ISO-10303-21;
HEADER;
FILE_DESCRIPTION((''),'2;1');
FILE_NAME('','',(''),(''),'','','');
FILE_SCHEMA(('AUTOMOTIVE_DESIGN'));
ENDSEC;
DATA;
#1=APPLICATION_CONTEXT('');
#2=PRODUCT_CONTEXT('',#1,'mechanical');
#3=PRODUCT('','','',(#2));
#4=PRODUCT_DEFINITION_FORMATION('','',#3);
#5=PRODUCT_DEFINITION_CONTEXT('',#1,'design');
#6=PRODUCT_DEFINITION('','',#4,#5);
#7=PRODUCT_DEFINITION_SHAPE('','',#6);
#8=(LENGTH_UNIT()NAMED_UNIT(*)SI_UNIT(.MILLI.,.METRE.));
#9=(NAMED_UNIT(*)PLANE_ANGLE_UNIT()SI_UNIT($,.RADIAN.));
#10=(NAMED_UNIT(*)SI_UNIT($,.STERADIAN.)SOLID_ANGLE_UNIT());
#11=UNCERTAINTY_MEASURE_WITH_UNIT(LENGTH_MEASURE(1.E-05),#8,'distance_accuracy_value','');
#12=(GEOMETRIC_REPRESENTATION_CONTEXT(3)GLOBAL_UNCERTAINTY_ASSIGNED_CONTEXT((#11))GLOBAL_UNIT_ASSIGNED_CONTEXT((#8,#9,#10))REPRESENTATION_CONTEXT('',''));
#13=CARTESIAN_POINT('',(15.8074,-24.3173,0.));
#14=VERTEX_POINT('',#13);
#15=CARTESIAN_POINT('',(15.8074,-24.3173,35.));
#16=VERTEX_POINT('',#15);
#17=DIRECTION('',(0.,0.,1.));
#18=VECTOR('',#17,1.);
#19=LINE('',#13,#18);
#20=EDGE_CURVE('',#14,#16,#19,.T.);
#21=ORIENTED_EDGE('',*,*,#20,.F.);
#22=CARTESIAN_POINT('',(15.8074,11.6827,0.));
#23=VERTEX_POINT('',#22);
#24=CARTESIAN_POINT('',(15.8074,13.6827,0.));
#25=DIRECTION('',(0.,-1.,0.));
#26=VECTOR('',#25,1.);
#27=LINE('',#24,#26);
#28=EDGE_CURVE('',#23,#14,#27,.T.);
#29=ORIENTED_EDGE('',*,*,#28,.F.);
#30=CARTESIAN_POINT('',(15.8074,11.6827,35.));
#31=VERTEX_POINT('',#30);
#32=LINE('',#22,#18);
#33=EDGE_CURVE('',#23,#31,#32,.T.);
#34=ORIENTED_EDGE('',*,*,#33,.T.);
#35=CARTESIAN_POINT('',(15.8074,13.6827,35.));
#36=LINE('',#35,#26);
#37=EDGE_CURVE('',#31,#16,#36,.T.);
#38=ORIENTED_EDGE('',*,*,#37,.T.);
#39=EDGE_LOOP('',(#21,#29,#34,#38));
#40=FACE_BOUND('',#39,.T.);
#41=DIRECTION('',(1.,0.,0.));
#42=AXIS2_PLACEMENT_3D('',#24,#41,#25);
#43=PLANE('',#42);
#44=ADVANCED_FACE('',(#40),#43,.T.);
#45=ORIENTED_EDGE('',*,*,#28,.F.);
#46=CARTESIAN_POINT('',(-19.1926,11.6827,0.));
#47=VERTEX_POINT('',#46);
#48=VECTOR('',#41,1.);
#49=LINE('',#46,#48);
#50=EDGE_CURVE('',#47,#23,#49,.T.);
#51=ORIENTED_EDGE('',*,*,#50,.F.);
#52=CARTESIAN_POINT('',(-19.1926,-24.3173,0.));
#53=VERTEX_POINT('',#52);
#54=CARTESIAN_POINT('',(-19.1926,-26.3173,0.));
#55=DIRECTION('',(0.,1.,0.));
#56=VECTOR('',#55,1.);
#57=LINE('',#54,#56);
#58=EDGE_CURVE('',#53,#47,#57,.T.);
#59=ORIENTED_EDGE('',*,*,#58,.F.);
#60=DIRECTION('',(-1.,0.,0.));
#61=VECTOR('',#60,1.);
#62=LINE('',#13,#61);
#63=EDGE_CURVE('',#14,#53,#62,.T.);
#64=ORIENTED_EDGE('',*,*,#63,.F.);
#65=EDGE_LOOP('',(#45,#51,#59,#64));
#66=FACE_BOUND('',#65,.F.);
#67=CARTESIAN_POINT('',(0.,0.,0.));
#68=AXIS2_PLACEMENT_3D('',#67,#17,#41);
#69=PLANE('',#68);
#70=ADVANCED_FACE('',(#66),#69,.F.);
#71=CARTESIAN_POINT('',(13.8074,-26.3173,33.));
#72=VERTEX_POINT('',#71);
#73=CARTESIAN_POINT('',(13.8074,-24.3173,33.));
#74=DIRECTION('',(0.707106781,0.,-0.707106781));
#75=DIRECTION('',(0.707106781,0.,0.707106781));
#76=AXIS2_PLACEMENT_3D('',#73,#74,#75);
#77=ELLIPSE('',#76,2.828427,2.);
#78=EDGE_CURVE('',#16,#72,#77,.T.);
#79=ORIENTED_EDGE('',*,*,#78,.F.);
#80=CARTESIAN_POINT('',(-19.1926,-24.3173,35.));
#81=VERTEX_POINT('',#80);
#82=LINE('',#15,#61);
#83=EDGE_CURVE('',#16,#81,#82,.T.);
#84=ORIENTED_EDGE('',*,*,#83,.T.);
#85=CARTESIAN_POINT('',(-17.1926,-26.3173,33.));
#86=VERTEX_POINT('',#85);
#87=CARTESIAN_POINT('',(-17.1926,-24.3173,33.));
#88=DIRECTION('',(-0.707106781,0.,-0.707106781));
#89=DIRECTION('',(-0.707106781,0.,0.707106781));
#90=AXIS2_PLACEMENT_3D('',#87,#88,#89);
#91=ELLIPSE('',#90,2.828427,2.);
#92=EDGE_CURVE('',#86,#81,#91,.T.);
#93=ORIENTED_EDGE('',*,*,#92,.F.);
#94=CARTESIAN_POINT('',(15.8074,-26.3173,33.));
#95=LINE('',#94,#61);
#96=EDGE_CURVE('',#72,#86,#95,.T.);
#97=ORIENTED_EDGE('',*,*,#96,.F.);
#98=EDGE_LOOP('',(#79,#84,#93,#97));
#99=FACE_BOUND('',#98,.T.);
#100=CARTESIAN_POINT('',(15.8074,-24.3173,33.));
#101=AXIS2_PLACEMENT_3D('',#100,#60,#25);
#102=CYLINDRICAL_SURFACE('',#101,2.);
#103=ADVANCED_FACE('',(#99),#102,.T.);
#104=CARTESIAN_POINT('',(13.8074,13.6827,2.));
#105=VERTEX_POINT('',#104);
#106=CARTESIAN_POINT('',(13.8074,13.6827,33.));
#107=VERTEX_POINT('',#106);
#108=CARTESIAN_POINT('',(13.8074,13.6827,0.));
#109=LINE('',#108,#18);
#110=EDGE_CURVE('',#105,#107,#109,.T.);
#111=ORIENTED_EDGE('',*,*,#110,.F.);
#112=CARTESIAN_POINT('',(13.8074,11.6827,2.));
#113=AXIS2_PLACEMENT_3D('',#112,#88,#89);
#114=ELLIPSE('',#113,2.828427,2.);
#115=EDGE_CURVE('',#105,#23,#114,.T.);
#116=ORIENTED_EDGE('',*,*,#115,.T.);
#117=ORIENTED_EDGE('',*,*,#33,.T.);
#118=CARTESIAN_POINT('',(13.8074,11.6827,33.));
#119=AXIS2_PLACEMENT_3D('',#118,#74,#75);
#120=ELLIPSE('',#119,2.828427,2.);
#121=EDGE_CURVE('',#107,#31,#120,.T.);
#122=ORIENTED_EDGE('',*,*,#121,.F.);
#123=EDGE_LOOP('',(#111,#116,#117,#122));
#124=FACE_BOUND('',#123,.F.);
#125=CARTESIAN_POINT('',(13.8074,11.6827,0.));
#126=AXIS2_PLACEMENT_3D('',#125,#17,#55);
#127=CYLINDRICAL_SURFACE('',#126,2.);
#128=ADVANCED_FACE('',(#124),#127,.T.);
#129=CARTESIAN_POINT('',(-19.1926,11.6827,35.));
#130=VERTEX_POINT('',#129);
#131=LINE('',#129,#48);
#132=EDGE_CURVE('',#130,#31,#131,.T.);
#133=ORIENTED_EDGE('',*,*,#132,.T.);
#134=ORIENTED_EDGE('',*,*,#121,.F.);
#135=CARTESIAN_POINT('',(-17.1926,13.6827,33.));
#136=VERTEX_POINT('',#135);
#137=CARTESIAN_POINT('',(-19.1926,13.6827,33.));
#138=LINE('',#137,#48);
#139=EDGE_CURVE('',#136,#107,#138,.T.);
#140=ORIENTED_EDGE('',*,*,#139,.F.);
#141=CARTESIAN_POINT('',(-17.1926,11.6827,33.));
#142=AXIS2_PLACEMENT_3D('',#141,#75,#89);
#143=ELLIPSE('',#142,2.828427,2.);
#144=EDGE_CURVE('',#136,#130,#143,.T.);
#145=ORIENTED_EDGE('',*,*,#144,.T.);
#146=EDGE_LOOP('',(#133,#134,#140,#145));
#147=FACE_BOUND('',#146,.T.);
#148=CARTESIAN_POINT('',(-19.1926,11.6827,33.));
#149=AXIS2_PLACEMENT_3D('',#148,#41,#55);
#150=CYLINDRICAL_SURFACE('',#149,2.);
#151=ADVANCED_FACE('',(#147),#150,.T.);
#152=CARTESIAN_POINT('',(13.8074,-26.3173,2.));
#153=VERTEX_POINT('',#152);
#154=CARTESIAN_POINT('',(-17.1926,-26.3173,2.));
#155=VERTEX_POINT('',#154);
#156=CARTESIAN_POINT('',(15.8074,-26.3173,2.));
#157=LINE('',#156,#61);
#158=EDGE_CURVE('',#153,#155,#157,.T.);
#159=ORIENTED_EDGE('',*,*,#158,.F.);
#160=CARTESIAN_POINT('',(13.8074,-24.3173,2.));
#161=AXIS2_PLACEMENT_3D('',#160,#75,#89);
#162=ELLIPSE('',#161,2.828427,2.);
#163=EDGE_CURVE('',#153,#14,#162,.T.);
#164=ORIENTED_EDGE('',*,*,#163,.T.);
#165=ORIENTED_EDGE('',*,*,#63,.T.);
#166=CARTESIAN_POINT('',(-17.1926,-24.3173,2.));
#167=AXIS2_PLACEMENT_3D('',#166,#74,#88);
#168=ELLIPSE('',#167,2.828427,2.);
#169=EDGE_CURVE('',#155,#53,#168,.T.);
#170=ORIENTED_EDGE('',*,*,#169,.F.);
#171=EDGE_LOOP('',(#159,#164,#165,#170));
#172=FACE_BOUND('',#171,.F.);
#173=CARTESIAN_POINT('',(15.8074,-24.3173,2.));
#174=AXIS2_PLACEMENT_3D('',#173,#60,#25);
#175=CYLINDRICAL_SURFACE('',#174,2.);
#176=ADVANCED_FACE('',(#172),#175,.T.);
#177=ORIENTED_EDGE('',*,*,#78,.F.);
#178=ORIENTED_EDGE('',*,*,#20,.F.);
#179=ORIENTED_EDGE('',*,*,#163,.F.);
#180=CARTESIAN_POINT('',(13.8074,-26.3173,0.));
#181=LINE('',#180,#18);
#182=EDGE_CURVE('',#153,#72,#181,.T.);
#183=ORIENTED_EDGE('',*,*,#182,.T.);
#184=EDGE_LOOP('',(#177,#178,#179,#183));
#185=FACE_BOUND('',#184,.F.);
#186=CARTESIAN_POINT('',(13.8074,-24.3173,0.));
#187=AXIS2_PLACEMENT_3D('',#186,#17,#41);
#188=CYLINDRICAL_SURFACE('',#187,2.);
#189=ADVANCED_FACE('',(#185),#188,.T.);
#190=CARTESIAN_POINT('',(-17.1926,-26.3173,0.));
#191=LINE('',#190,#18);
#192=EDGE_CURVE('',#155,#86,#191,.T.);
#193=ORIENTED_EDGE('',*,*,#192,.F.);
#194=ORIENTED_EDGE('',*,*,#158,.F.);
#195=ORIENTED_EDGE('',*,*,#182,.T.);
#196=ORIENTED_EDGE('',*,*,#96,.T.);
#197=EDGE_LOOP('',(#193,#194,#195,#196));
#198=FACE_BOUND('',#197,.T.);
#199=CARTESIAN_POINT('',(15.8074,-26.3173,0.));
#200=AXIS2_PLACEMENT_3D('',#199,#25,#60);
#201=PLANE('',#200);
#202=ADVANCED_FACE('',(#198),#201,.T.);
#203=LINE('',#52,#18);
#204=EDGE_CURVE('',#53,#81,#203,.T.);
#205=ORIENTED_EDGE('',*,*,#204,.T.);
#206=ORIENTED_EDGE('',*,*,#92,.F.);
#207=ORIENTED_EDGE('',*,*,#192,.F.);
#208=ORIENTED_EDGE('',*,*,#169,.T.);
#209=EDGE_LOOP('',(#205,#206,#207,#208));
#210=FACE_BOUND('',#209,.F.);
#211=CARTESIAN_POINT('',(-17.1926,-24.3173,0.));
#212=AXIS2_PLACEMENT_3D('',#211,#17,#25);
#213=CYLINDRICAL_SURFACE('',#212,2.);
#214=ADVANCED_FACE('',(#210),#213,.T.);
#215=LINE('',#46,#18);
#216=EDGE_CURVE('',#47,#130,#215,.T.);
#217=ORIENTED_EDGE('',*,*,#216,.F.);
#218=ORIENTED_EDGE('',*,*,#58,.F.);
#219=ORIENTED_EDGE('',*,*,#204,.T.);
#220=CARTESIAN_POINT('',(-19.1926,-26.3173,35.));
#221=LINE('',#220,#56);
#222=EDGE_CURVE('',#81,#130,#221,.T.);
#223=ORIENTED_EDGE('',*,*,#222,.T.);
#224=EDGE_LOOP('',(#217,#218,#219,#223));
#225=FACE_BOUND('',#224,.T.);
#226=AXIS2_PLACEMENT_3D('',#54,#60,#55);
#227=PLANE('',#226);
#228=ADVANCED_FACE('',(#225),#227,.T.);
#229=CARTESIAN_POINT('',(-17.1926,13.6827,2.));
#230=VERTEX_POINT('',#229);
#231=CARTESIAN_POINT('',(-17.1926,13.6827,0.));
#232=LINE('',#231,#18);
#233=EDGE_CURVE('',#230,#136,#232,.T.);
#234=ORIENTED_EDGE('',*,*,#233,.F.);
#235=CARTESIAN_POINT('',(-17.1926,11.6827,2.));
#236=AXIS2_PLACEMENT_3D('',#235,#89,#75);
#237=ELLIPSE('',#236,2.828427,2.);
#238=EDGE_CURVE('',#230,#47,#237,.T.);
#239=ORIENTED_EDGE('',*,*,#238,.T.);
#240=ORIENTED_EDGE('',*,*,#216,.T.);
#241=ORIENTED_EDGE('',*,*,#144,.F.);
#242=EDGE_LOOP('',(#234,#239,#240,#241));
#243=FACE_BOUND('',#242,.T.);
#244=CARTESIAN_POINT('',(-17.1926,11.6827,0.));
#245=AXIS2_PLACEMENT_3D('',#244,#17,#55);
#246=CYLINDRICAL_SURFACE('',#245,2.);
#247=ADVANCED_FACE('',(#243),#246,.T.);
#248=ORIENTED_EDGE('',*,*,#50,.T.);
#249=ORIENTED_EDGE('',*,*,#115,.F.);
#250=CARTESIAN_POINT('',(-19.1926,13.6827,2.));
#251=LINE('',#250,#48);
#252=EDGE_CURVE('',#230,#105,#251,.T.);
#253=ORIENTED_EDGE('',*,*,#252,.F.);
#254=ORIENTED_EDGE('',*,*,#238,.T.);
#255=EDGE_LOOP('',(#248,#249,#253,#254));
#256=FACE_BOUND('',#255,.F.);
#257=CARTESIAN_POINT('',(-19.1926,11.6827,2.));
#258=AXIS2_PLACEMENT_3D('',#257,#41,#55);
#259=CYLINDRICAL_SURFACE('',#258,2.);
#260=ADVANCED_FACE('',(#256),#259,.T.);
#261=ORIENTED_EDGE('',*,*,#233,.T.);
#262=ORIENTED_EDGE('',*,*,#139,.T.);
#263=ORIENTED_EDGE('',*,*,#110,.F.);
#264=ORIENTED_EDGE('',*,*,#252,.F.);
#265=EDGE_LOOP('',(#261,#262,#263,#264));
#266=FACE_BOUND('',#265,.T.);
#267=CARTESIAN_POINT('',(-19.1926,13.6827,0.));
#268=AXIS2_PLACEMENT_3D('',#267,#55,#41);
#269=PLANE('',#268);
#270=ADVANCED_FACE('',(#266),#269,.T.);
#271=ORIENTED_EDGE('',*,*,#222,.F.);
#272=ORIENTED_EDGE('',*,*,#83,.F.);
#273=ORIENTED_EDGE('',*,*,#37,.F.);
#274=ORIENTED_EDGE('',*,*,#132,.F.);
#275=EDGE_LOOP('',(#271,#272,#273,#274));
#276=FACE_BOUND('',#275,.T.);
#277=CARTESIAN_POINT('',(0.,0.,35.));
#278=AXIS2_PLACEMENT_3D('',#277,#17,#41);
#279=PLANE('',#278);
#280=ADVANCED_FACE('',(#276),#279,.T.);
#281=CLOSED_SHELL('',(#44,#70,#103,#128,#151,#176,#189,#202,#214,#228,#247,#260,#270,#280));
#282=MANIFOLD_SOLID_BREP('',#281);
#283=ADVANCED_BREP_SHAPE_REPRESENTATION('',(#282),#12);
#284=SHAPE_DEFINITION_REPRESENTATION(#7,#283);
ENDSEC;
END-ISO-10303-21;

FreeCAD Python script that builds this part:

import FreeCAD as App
import Part
import Sketcher


def edges_at(feature, points):
    """Names of the edges that pass closest to the given points."""
    edges = feature.Shape.Edges
    near = lambda p: min(range(len(edges)), key=lambda i: edges[i].distToShape(Part.Vertex(*p))[0])
    return sorted({f"Edge{near(p) + 1}" for p in points})


def add_polygon(sketch, points):
    """Adds a closed chain of lines whose ends are joined by coincident constraints."""
    first, n = sketch.GeometryCount, len(points)
    for a, b in zip(points, points[1:] + points[:1]):
        sketch.addGeometry(Part.LineSegment(App.Vector(*a, 0), App.Vector(*b, 0)), False)
    for i in range(n):
        sketch.addConstraint(Sketcher.Constraint("Coincident", first + i, 2, first + (i + 1) % n, 1))

doc = App.newDocument("Part")
body = doc.addObject("PartDesign::Body", "Body")

sketch1 = body.newObject("Sketcher::SketchObject", "Sketch")
sketch1.AttachmentSupport = (doc.getObject("XY_Plane"), [""])
sketch1.MapMode = "FlatFace"
add_polygon(sketch1, [(16, 14), (-19, 14), (-19, -26), (16, -26)])
sketch1.addConstraint(Sketcher.Constraint("Horizontal", 0))
sketch1.addConstraint(Sketcher.Constraint("Vertical", 1))
sketch1.addConstraint(Sketcher.Constraint("Horizontal", 2))
sketch1.addConstraint(Sketcher.Constraint("Vertical", 3))
sketch1.addConstraint(Sketcher.Constraint("DistanceX", 0, 2, 0, 1, 35.0))
sketch1.addConstraint(Sketcher.Constraint("DistanceY", 1, 2, 1, 1, 40.0))
sketch1.addConstraint(Sketcher.Constraint("DistanceX", 0, 2, -1, 1, 19.1926))
sketch1.addConstraint(Sketcher.Constraint("DistanceY", -1, 1, 0, 2, 13.6827))
pad1 = body.newObject("PartDesign::Pad", "Pad")
pad1.Profile = sketch1
pad1.Length = 35
doc.recompute()

fillet = body.newObject("PartDesign::Fillet", "Fillet")
fillet.Base = (pad1, edges_at(pad1, [
    (-19.193, 13.683, 17.5),
    (15.807, 13.683, 17.5),
    (-1.693, 13.683, 35),
    (-1.693, 13.683, 0),
    (-1.693, -26.317, 0),
    (-19.193, -26.317, 17.5),
    (15.807, -26.317, 17.5),
    (-1.693, -26.317, 35),
]))
fillet.Radius = 2

doc.recompute()
